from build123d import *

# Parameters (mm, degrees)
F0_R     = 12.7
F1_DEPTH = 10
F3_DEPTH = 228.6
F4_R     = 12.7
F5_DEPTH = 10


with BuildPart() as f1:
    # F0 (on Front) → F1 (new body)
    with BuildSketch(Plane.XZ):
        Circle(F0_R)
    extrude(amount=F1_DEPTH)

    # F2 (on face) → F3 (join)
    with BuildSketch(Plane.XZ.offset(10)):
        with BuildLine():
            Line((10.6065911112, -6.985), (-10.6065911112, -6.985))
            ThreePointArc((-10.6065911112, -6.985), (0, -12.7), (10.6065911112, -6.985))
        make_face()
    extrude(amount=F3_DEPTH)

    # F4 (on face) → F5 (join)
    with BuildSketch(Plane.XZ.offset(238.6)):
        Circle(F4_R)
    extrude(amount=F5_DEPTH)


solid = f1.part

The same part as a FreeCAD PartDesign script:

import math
import FreeCAD as App
import Part
import Sketcher

V = App.Vector
Q = App.Units.Quantity

doc = App.newDocument("Part")
body = doc.addObject("PartDesign::Body", "Body")

sketch1 = doc.addObject("Sketcher::SketchObject", "Sketch")
body.addObject(sketch1)
sketch1.AttachmentSupport = (doc.XZ_Plane, [""])
sketch1.MapMode = "FlatFace"
sketch1.addGeometry(Part.Circle(V(0, 0, 0), V(0, 0, 1), 13), False)
sketch1.addConstraint(Sketcher.Constraint("Coincident", 0, 3, -1, 1))
sketch1.addConstraint(Sketcher.Constraint("Diameter", 0, Q("1 in")))
pad1 = doc.addObject("PartDesign::Pad", "Pad")
body.addObject(pad1)
pad1.Profile = sketch1
pad1.Length = 10

sketch2 = doc.addObject("Sketcher::SketchObject", "Sketch001")
body.addObject(sketch2)
sketch2.AttachmentSupport = (doc.XZ_Plane, [""])
sketch2.MapMode = "FlatFace"
sketch2.AttachmentOffset = App.Placement(V(0, 0, 10), App.Rotation())
sketch2.addGeometry(Part.LineSegment(V(11, -7, 0), V(-11, -7, 0)), False)
sketch2.addGeometry(Part.ArcOfCircle(Part.Circle(V(0, 0, 0), V(0, 0, 1), 13), math.radians(-147), math.radians(-33)), False)
sketch2.addConstraint(Sketcher.Constraint("Coincident", 0, 1, 1, 2))
sketch2.addConstraint(Sketcher.Constraint("Coincident", 1, 1, 0, 2))
sketch2.addConstraint(Sketcher.Constraint("Horizontal", 0))
sketch2.addConstraint(Sketcher.Constraint("Coincident", 1, 3, -1, 1))
sketch2.addConstraint(Sketcher.Constraint("Radius", 1, Q("0.5 in")))
sketch2.addConstraint(Sketcher.Constraint("DistanceY", 0, 1, -1, 1, Q("0.275 in")))
pad2 = doc.addObject("PartDesign::Pad", "Pad001")
body.addObject(pad2)
pad2.Profile = sketch2
pad2.Length = Q("9 in")

sketch3 = doc.addObject("Sketcher::SketchObject", "Sketch002")
body.addObject(sketch3)
sketch3.AttachmentSupport = (doc.XZ_Plane, [""])
sketch3.MapMode = "FlatFace"
sketch3.AttachmentOffset = App.Placement(V(0, 0, 238.6), App.Rotation())
sketch3.addGeometry(Part.Circle(V(0, 0, 0), V(0, 0, 1), 13), False)
sketch3.addConstraint(Sketcher.Constraint("Coincident", 0, 3, -1, 1))
sketch3.addConstraint(Sketcher.Constraint("Diameter", 0, Q("1 in")))
pad3 = doc.addObject("PartDesign::Pad", "Pad002")
body.addObject(pad3)
pad3.Profile = sketch3
pad3.Length = 10

doc.recompute()
